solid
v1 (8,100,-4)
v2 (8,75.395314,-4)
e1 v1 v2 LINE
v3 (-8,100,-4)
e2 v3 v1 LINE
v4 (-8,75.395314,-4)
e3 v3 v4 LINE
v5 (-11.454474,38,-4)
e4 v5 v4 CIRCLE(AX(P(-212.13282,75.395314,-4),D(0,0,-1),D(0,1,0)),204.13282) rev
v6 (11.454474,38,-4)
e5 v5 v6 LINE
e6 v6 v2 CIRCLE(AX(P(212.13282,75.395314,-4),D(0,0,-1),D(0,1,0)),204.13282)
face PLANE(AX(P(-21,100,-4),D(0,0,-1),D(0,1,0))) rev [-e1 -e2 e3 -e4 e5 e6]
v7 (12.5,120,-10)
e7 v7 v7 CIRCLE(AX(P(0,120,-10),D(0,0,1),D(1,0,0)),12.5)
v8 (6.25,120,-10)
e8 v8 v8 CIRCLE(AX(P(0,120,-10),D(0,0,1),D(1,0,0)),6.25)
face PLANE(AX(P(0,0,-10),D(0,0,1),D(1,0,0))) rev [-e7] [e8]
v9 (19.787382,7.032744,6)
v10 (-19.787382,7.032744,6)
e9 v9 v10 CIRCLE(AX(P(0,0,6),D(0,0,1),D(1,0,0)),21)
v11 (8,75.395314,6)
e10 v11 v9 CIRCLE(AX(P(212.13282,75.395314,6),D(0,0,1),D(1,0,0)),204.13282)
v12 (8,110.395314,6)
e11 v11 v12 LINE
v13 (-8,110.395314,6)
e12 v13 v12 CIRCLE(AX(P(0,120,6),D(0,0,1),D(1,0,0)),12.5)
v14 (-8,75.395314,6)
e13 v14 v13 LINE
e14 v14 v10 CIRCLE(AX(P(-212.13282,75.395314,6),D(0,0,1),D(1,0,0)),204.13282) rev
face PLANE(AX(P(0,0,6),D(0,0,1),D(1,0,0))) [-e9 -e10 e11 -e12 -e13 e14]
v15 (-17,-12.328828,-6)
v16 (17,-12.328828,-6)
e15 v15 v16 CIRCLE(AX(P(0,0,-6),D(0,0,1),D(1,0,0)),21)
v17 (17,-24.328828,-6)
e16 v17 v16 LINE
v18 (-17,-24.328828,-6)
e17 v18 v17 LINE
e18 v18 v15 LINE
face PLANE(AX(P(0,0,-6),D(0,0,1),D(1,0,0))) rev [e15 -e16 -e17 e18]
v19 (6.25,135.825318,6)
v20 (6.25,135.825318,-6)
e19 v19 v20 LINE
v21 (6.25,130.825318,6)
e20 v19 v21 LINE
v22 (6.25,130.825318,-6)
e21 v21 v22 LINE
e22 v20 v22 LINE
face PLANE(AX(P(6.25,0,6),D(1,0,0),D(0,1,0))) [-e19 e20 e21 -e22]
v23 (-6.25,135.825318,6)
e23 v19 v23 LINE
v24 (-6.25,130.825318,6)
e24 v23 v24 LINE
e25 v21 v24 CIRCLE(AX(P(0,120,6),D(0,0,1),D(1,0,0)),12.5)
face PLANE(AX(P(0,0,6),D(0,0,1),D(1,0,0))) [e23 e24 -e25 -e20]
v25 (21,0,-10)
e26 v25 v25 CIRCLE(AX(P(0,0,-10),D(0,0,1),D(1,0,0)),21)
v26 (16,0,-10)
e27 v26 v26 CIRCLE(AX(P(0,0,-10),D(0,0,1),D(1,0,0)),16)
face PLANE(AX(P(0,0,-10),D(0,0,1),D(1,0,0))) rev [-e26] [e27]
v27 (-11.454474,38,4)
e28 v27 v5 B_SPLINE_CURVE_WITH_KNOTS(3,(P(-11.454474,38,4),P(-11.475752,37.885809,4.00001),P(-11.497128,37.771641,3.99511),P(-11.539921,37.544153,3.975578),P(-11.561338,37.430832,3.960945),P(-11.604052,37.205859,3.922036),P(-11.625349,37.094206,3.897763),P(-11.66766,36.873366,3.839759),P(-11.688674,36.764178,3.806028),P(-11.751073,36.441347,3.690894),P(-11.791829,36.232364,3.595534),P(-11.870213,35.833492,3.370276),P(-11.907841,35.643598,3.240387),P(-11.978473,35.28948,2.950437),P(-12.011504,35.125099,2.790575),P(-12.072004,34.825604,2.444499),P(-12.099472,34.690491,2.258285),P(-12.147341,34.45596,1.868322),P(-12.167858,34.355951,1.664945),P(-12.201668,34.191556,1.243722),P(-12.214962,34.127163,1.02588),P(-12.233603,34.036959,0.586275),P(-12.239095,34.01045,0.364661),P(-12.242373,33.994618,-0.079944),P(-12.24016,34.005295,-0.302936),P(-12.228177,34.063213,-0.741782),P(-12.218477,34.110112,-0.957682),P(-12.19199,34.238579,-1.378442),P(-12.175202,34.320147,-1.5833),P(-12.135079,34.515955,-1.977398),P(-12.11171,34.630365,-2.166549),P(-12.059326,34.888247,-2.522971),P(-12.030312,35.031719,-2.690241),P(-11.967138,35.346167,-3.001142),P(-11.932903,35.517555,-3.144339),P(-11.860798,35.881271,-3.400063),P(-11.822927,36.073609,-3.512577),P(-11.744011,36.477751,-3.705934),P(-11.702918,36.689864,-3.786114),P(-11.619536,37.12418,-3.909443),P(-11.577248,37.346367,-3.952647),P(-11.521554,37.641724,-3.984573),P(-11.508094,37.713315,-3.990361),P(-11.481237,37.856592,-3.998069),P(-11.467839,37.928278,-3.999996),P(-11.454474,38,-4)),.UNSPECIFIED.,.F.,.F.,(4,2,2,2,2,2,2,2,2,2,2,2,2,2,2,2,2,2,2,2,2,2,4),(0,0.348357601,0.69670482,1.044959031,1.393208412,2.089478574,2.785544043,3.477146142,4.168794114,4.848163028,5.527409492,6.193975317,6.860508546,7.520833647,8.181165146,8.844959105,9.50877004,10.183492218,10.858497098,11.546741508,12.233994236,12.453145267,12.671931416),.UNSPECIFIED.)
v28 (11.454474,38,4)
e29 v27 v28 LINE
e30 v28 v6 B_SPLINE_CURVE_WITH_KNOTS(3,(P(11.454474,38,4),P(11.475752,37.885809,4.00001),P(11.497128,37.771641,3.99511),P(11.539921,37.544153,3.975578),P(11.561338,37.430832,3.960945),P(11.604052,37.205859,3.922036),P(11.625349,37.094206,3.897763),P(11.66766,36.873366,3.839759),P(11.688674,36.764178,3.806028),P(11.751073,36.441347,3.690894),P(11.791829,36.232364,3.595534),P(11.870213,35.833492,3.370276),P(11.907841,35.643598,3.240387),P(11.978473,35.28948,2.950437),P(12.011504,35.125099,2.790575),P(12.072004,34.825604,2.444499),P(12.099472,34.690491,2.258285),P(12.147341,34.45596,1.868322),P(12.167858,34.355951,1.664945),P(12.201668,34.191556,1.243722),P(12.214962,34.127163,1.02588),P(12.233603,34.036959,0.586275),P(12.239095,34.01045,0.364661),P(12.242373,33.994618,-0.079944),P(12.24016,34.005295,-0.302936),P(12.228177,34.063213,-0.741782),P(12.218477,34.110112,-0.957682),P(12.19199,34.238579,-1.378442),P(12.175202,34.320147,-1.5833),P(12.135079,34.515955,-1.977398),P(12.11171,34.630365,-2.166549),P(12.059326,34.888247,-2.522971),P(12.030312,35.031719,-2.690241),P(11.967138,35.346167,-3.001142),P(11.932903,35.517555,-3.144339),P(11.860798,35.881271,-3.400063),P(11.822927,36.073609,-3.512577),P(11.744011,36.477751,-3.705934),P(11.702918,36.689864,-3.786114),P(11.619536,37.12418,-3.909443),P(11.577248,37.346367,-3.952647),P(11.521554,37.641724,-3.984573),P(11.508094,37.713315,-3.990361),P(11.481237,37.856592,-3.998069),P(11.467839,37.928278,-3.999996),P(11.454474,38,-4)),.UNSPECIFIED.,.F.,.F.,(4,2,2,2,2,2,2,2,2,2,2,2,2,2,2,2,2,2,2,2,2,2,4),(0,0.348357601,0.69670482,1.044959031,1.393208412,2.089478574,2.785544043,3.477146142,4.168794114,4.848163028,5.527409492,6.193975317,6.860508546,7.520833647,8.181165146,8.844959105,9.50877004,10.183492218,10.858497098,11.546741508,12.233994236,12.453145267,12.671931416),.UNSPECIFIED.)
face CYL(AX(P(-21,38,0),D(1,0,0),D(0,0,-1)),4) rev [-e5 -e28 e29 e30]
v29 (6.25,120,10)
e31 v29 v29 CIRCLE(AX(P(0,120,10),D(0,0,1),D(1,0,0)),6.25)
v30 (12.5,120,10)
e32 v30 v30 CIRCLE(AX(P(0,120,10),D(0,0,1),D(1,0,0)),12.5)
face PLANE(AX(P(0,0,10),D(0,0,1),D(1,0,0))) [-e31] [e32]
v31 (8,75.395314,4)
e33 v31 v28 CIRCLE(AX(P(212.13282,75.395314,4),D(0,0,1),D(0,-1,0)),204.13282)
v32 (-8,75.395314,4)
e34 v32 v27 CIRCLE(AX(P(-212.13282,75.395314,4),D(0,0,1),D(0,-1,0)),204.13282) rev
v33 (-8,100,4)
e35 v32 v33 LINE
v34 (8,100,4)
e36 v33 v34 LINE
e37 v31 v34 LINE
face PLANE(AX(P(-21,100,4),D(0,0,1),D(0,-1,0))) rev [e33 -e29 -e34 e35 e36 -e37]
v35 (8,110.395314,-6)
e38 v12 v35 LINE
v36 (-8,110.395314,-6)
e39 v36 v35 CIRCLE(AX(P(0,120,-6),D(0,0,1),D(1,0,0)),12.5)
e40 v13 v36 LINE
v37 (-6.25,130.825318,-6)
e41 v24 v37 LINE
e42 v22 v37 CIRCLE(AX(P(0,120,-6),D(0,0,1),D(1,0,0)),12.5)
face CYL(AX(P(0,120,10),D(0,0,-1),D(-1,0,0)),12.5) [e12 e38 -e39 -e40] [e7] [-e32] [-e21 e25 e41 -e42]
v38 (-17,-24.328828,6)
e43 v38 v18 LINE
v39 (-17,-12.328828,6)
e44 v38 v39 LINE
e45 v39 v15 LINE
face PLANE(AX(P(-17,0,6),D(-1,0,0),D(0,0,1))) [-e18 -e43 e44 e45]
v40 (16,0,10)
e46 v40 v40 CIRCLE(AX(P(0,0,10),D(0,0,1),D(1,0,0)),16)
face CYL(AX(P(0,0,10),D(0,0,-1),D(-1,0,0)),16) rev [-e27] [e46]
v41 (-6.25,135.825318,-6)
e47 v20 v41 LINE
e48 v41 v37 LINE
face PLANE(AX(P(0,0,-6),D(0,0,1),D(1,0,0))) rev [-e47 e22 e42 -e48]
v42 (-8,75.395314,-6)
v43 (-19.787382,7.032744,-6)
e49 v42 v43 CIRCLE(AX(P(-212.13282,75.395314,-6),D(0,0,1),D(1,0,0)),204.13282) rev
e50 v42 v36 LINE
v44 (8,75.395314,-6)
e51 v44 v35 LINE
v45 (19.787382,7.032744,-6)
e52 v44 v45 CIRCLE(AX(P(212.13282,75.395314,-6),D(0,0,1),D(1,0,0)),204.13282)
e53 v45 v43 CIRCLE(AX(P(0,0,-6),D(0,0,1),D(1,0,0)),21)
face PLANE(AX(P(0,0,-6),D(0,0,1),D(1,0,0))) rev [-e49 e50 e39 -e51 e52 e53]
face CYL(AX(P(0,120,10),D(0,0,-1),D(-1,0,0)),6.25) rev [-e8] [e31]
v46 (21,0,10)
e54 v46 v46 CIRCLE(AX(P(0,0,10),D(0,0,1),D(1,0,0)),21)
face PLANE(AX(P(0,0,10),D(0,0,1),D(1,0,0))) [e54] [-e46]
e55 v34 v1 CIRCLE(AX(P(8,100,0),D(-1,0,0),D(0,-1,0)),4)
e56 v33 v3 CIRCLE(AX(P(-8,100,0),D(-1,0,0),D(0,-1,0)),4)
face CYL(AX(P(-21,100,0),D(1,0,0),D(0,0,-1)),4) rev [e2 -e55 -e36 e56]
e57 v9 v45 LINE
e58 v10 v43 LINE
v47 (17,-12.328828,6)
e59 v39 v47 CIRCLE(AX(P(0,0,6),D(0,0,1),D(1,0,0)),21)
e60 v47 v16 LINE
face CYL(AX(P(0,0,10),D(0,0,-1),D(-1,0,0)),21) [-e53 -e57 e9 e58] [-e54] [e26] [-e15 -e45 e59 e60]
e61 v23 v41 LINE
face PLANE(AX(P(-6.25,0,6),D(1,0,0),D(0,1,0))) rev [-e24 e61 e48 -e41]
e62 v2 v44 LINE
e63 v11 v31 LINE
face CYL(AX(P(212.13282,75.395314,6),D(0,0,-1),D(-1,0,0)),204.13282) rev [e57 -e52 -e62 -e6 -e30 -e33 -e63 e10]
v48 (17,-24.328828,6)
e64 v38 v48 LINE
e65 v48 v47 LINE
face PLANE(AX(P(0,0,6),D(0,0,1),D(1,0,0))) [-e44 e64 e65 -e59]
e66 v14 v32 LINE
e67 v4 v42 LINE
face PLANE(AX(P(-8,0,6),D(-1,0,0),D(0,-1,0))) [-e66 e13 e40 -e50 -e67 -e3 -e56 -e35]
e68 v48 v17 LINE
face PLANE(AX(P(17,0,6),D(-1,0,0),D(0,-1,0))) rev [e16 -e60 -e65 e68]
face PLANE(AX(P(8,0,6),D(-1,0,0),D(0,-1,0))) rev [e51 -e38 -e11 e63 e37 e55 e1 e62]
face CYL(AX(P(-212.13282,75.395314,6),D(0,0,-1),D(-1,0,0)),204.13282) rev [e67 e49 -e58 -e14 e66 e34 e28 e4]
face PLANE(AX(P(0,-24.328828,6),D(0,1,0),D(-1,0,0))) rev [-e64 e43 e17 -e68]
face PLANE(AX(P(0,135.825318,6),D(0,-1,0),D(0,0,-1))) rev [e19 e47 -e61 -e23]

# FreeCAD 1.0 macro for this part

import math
import FreeCAD as App
import Part
import Sketcher
Q = App.Units.Quantity

doc = App.newDocument("Part")
body = doc.addObject("PartDesign::Body", "Body")

# Sketch on XY plane
sketch1 = body.newObject("Sketcher::SketchObject", "Sketch")
sketch1.AttachmentSupport = (doc.getObject("XY_Plane"), [""])
sketch1.MapMode = "FlatFace"
sketch1.addGeometry(Part.Circle(App.Vector(0, 0, 0), App.Vector(0, 0, 1), 21), False)
sketch1.addGeometry(Part.Circle(App.Vector(0, 0, 0), App.Vector(0, 0, 1), 16), False)
sketch1.addConstraint(Sketcher.Constraint("Coincident", 0, 3, -1, 1))
sketch1.addConstraint(Sketcher.Constraint("Coincident", 1, 3, -1, 1))
sketch1.addConstraint(Sketcher.Constraint("Diameter", 0, Q("42 mm")))
sketch1.addConstraint(Sketcher.Constraint("Diameter", 1, Q("32 mm")))
pad1 = body.newObject("PartDesign::Pad", "Pad")
pad1.Profile = sketch1
pad1.Length = 20
pad1.Midplane = True
body2 = doc.addObject("PartDesign::Body", "Body001")

# Sketch on XY plane
sketch2 = body2.newObject("Sketcher::SketchObject", "Sketch001")
sketch2.AttachmentSupport = (doc.getObject("XY_Plane001"), [""])
sketch2.MapMode = "FlatFace"
sketch2.addGeometry(Part.Circle(App.Vector(0, 120, 0), App.Vector(0, 0, 1), 12.5), False)
sketch2.addGeometry(Part.Circle(App.Vector(0, 120, 0), App.Vector(0, 0, 1), 6.25), False)
sketch2.addConstraint(Sketcher.Constraint("Coincident", 1, 3, 0, 3))
sketch2.addConstraint(Sketcher.Constraint("PointOnObject", 0, 3, -2))
sketch2.addConstraint(Sketcher.Constraint("Diameter", 0, Q("25 mm")))
sketch2.addConstraint(Sketcher.Constraint("Diameter", 1, Q("12.5 mm")))
sketch2.addConstraint(Sketcher.Constraint("DistanceY", -1, 1, 0, 3, Q("120 mm")))
pad2 = body2.newObject("PartDesign::Pad", "Pad001")
pad2.Profile = sketch2
pad2.Length = 20
pad2.Midplane = True
body.AllowCompound = True
doc.recompute()

boolean = body.newObject("PartDesign::Boolean", "Boolean")
boolean.Type = "Fuse"
boolean.addObjects([body2])

# Sketch on XY plane
sketch3 = body.newObject("Sketcher::SketchObject", "Sketch002")
sketch3.AttachmentSupport = (doc.getObject("XY_Plane"), [""])
sketch3.MapMode = "FlatFace"
sketch3.addGeometry(Part.LineSegment(App.Vector(-8, 110.395314, 0), App.Vector(-8, 75.395314, 0)), False)
sketch3.addGeometry(Part.ArcOfCircle(Part.Circle(App.Vector(-212.13282, 75.395314, 0), App.Vector(0, 0, 1), 204.13282), math.radians(-19.566007), math.radians(0)), False)
sketch3.addGeometry(Part.ArcOfCircle(Part.Circle(App.Vector(0, 0, 0), App.Vector(0, 0, 1), 21), math.radians(19.566007), math.radians(160.433993)), False)
sketch3.addGeometry(Part.ArcOfCircle(Part.Circle(App.Vector(212.13282, 75.395314, 0), App.Vector(0, 0, 1), 204.13282), math.radians(180), math.radians(199.566007)), False)
sketch3.addGeometry(Part.LineSegment(App.Vector(8, 75.395314, 0), App.Vector(8, 110.395314, 0)), False)
sketch3.addGeometry(Part.ArcOfCircle(Part.Circle(App.Vector(0, 120, 0), App.Vector(0, 0, 1), 12.5), math.radians(-129.791819), math.radians(-50.208181)), False)
sketch3.addGeometry(Part.LineSegment(App.Vector(-6.25, 135.825318, 0), App.Vector(-6.25, 130.825318, 0)), False)
sketch3.addGeometry(Part.ArcOfCircle(Part.Circle(App.Vector(0, 120, 0), App.Vector(0, 0, 1), 12.5), math.radians(60), math.radians(120)), False)
sketch3.addGeometry(Part.LineSegment(App.Vector(6.25, 130.825318, 0), App.Vector(6.25, 135.825318, 0)), False)
sketch3.addGeometry(Part.LineSegment(App.Vector(6.25, 135.825318, 0), App.Vector(-6.25, 135.825318, 0)), False)
sketch3.addGeometry(Part.ArcOfCircle(Part.Circle(App.Vector(0, 0, 0), App.Vector(0, 0, 1), 21), math.radians(-144.049432), math.radians(-35.950568)), False)
sketch3.addGeometry(Part.LineSegment(App.Vector(-17, -12.328828, 0), App.Vector(-17, -24.328828, 0)), False)
sketch3.addGeometry(Part.LineSegment(App.Vector(-17, -24.328828, 0), App.Vector(17, -24.328828, 0)), False)
sketch3.addGeometry(Part.LineSegment(App.Vector(17, -24.328828, 0), App.Vector(17, -12.328828, 0)), False)
sketch3.addConstraint(Sketcher.Constraint("Tangent", 0, 2, 1, 2))
sketch3.addConstraint(Sketcher.Constraint("Tangent", 1, 1, 2, 2))
sketch3.addConstraint(Sketcher.Constraint("Tangent", 2, 1, 3, 2))
sketch3.addConstraint(Sketcher.Constraint("Tangent", 3, 1, 4, 1))
sketch3.addConstraint(Sketcher.Constraint("Coincident", 4, 2, 5, 2))
sketch3.addConstraint(Sketcher.Constraint("Coincident", 5, 1, 0, 1))
sketch3.addConstraint(Sketcher.Constraint("Coincident", 6, 2, 7, 2))
sketch3.addConstraint(Sketcher.Constraint("Coincident", 7, 1, 8, 1))
sketch3.addConstraint(Sketcher.Constraint("Coincident", 8, 2, 9, 1))
sketch3.addConstraint(Sketcher.Constraint("Coincident", 9, 2, 6, 1))
sketch3.addConstraint(Sketcher.Constraint("Coincident", 10, 1, 11, 1))
sketch3.addConstraint(Sketcher.Constraint("Coincident", 11, 2, 12, 1))
sketch3.addConstraint(Sketcher.Constraint("Coincident", 12, 2, 13, 1))
sketch3.addConstraint(Sketcher.Constraint("Coincident", 13, 2, 10, 2))
sketch3.addConstraint(Sketcher.Constraint("Vertical", 0))
sketch3.addConstraint(Sketcher.Constraint("Vertical", 4))
sketch3.addConstraint(Sketcher.Constraint("Vertical", 6))
sketch3.addConstraint(Sketcher.Constraint("Vertical", 8))
sketch3.addConstraint(Sketcher.Constraint("Horizontal", 9))
sketch3.addConstraint(Sketcher.Constraint("Vertical", 11))
sketch3.addConstraint(Sketcher.Constraint("Horizontal", 12))
sketch3.addConstraint(Sketcher.Constraint("Vertical", 13))
sketch3.addConstraint(Sketcher.Constraint("Coincident", 2, 3, -1, 1))
sketch3.addConstraint(Sketcher.Constraint("Coincident", 10, 3, -1, 1))
sketch3.addConstraint(Sketcher.Constraint("Coincident", 7, 3, 5, 3))
sketch3.addConstraint(Sketcher.Constraint("Equal", 1, 3))
sketch3.addConstraint(Sketcher.Constraint("Equal", 5, 7))
sketch3.addConstraint(Sketcher.Constraint("Equal", 2, 10))
sketch3.addConstraint(Sketcher.Constraint("Symmetric", 4, 2, 5, 1, -2))
sketch3.addConstraint(Sketcher.Constraint("Horizontal", 6, 2, 7, 1))
sketch3.addConstraint(Sketcher.Constraint("Horizontal", 10, 1, 13, 2))
sketch3.addConstraint(Sketcher.Constraint("Radius", 2, Q("21 mm")))
sketch3.addConstraint(Sketcher.Constraint("Radius", 5, Q("12.5 mm")))
sketch3.addConstraint(Sketcher.Constraint("DistanceX", 12, 1, 12, 2, Q("34 mm")))
sketch3.addConstraint(Sketcher.Constraint("DistanceY", 0, 2, 0, 1, Q("35 mm")))
sketch3.addConstraint(Sketcher.Constraint("DistanceY", 6, 2, 6, 1, Q("5 mm")))
sketch3.addConstraint(Sketcher.Constraint("DistanceY", 11, 2, 11, 1, Q("12 mm")))
sketch3.addConstraint(Sketcher.Constraint("DistanceX", 9, 2, 9, 1, Q("12.5 mm")))
sketch3.addConstraint(Sketcher.Constraint("DistanceY", -1, 1, 5, 3, Q("120 mm")))
sketch3.addConstraint(Sketcher.Constraint("DistanceX", 0, 2, -1, 1, Q("8 mm")))
pad3 = body.newObject("PartDesign::Pad", "Pad002")
pad3.Profile = sketch3
pad3.Length = 12
pad3.Midplane = True

# Sketch on YZ plane
sketch4 = body.newObject("Sketcher::SketchObject", "Sketch003")
sketch4.AttachmentSupport = (doc.getObject("YZ_Plane"), [""])
sketch4.MapMode = "FlatFace"
sketch4.AttachmentOffset = App.Placement(App.Vector(0, 0, -6), App.Rotation())
sketch4.addGeometry(Part.LineSegment(App.Vector(38, -4, 0), App.Vector(100, -4, 0)), False)
sketch4.addGeometry(Part.ArcOfCircle(Part.Circle(App.Vector(100, 0, 0), App.Vector(0, 0, 1), 4), math.radians(-90), math.radians(90)), False)
sketch4.addGeometry(Part.LineSegment(App.Vector(100, 4, 0), App.Vector(38, 4, 0)), False)
sketch4.addGeometry(Part.ArcOfCircle(Part.Circle(App.Vector(38, 0, 0), App.Vector(0, 0, 1), 4), math.radians(90), math.radians(270)), False)
sketch4.addConstraint(Sketcher.Constraint("Tangent", 0, 2, 1, 1))
sketch4.addConstraint(Sketcher.Constraint("Tangent", 1, 2, 2, 1))
sketch4.addConstraint(Sketcher.Constraint("Tangent", 2, 2, 3, 1))
sketch4.addConstraint(Sketcher.Constraint("Tangent", 3, 2, 0, 1))
sketch4.addConstraint(Sketcher.Constraint("Horizontal", 0))
sketch4.addConstraint(Sketcher.Constraint("Horizontal", 2))
sketch4.addConstraint(Sketcher.Constraint("PointOnObject", 1, 3, -1))
sketch4.addConstraint(Sketcher.Constraint("Radius", 1, Q("4 mm")))
sketch4.addConstraint(Sketcher.Constraint("DistanceX", 0, 1, 0, 2, Q("62 mm")))
sketch4.addConstraint(Sketcher.Constraint("DistanceX", -1, 1, 1, 3, Q("100 mm")))
pocket1 = body.newObject("PartDesign::Pocket", "Pocket")
pocket1.Profile = sketch4
pocket1.Type = "ThroughAll"
pocket1.Midplane = True

doc.recompute()
